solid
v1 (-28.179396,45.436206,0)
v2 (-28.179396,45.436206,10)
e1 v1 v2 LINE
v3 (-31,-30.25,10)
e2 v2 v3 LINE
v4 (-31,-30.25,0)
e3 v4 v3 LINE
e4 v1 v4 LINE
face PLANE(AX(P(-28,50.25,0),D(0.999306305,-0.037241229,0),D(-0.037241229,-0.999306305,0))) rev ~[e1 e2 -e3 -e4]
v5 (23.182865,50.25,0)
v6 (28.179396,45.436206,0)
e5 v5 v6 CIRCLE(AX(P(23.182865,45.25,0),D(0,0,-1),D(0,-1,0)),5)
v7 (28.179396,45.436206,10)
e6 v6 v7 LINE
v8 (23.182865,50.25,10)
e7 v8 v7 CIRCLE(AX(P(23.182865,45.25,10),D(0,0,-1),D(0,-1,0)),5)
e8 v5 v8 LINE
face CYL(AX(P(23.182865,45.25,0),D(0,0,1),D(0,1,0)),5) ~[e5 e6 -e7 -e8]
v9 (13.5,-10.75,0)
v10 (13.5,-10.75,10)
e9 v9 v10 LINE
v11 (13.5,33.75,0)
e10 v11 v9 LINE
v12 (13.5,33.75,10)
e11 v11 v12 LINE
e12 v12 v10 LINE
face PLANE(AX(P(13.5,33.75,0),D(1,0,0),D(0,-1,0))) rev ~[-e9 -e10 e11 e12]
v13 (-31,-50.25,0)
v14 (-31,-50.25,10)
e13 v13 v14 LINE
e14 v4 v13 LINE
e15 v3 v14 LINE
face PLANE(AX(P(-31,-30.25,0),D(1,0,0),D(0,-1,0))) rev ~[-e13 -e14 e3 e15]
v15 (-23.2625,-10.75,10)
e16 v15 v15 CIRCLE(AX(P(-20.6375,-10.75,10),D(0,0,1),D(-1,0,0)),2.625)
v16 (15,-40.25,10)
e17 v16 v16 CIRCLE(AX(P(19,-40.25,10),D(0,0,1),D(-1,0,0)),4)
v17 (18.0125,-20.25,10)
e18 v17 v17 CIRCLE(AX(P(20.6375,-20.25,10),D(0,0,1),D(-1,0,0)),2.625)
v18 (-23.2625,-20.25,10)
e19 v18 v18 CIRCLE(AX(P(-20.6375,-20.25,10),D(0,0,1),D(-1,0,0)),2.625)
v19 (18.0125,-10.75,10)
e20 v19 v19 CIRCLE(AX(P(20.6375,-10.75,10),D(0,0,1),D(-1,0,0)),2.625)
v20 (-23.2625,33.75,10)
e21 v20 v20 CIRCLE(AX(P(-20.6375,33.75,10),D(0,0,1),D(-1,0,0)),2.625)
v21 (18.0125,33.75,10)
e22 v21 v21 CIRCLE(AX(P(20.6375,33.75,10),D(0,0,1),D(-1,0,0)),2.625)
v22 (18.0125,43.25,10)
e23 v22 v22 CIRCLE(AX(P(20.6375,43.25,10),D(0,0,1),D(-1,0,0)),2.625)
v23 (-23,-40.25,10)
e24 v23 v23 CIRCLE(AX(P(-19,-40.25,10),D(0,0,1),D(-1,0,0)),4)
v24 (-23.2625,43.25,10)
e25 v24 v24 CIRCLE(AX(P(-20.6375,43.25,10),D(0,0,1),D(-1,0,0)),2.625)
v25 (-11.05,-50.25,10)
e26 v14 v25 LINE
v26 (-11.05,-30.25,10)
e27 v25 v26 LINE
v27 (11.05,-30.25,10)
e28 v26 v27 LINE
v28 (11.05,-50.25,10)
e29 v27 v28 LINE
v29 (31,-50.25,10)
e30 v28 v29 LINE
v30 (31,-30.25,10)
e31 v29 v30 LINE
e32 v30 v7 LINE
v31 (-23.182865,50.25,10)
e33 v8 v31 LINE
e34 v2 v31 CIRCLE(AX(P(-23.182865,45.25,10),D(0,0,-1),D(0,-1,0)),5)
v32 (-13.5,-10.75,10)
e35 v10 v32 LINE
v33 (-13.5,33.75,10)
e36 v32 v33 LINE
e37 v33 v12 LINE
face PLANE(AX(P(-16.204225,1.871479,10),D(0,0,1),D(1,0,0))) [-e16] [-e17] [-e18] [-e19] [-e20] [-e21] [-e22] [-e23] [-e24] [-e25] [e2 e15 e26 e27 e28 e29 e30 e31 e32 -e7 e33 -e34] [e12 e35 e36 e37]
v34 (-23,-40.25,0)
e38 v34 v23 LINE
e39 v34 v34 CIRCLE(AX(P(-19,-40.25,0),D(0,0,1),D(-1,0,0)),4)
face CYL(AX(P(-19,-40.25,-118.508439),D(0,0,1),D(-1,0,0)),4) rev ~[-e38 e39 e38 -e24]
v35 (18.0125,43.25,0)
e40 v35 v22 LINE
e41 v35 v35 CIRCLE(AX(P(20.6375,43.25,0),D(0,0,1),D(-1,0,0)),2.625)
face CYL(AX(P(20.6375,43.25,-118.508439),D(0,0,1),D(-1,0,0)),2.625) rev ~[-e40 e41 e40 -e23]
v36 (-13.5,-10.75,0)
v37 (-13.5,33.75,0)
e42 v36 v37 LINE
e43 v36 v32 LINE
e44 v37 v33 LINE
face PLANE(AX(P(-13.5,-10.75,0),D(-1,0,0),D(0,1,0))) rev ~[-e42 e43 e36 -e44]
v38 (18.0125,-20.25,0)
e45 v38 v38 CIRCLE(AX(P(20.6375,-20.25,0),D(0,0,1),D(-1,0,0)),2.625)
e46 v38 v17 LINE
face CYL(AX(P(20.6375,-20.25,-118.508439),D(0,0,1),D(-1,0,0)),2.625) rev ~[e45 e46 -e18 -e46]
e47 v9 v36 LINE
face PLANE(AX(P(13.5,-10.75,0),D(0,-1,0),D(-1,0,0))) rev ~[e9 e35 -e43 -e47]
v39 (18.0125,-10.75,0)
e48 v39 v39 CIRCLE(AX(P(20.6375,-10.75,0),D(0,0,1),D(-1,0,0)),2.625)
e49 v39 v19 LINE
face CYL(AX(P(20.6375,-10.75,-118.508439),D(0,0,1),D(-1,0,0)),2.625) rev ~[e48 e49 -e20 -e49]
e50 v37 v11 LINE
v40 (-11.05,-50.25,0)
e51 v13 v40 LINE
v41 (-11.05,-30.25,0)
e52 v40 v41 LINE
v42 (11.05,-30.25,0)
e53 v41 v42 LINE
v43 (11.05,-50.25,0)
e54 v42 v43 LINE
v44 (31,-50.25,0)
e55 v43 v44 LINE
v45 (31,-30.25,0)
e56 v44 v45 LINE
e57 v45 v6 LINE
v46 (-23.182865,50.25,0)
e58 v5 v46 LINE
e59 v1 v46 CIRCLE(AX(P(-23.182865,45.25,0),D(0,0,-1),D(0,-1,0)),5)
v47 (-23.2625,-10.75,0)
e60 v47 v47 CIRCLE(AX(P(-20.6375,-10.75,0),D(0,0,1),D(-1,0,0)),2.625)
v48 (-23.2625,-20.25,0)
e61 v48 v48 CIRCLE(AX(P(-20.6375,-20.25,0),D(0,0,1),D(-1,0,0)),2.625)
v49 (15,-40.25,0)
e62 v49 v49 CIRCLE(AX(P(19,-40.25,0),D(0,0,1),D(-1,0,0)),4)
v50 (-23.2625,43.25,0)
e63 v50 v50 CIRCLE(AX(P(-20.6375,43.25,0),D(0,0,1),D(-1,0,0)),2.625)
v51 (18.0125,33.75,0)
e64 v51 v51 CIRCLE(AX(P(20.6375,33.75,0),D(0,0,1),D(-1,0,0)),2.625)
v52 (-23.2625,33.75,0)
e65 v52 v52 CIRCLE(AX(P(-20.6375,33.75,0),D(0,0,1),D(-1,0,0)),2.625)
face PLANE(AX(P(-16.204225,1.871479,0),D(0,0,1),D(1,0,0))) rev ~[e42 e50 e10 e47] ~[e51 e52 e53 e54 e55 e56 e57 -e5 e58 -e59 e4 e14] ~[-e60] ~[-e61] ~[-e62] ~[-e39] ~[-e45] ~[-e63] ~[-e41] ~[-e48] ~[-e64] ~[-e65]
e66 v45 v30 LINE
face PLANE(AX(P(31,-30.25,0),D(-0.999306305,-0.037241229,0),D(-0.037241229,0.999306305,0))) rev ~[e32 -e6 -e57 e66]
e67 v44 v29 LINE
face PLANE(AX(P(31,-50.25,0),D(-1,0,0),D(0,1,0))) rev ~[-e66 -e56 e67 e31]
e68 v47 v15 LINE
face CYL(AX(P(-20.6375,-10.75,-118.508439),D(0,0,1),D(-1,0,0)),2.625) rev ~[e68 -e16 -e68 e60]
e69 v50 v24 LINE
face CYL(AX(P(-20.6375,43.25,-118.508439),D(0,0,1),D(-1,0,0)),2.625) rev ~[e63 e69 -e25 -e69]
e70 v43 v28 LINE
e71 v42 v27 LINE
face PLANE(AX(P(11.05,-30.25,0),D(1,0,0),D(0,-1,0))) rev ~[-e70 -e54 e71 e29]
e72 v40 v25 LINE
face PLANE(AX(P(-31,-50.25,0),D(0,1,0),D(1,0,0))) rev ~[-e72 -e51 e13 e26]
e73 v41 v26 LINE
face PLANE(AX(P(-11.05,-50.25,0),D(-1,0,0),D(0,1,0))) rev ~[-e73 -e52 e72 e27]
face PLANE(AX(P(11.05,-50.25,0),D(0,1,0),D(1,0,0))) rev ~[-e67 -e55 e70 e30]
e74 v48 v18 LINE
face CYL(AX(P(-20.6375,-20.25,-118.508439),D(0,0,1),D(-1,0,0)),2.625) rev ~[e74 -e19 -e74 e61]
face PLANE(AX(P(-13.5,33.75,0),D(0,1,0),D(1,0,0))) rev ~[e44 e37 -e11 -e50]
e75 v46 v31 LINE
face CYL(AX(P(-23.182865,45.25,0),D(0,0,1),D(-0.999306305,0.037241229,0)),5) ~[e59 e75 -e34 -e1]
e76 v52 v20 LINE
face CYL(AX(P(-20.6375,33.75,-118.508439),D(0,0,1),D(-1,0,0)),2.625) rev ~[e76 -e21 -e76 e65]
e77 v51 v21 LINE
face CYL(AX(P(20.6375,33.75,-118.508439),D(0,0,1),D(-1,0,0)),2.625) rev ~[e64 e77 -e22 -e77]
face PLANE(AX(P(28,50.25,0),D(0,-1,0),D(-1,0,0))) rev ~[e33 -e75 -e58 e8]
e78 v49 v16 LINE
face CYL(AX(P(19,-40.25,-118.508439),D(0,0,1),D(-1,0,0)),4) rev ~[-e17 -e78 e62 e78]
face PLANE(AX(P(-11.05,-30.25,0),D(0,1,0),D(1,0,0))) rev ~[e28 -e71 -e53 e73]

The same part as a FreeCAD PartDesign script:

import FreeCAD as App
import Part
import Sketcher
from FreeCAD import Vector
Q = App.Units.Quantity


def edges_at(feature, points):
    """Names of the edges that pass closest to the given points."""
    edges = feature.Shape.Edges
    near = lambda p: min(range(len(edges)), key=lambda i: edges[i].distToShape(Part.Vertex(*p))[0])
    return sorted({f"Edge{near(p) + 1}" for p in points})

doc = App.newDocument("Part")
body = doc.addObject("PartDesign::Body", "Body")

sketch1 = body.newObject("Sketcher::SketchObject", "Sketch")
sketch1.AttachmentSupport = (doc.getObject("XY_Plane"), [""])
sketch1.MapMode = "FlatFace"
sketch1.addGeometry(Part.LineSegment(Vector(-11.05, -50.25, 0), Vector(-11.05, -30.25, 0)), False)
sketch1.addGeometry(Part.LineSegment(Vector(-11.05, -30.25, 0), Vector(11.05, -30.25, 0)), False)
sketch1.addGeometry(Part.LineSegment(Vector(11.05, -30.25, 0), Vector(11.05, -50.25, 0)), False)
sketch1.addGeometry(Part.LineSegment(Vector(11.05, -50.25, 0), Vector(31, -50.25, 0)), False)
sketch1.addGeometry(Part.LineSegment(Vector(31, -50.25, 0), Vector(31, -30.25, 0)), False)
sketch1.addGeometry(Part.LineSegment(Vector(31, -30.25, 0), Vector(28, 50.25, 0)), False)
sketch1.addGeometry(Part.LineSegment(Vector(28, 50.25, 0), Vector(-28, 50.25, 0)), False)
sketch1.addGeometry(Part.LineSegment(Vector(-28, 50.25, 0), Vector(-31, -30.25, 0)), False)
sketch1.addGeometry(Part.LineSegment(Vector(-31, -30.25, 0), Vector(-31, -50.25, 0)), False)
sketch1.addGeometry(Part.LineSegment(Vector(-31, -50.25, 0), Vector(-11.05, -50.25, 0)), False)
sketch1.addGeometry(Part.LineSegment(Vector(-13.5, -10.75, 0), Vector(-13.5, 33.75, 0)), False)
sketch1.addGeometry(Part.LineSegment(Vector(-13.5, 33.75, 0), Vector(13.5, 33.75, 0)), False)
sketch1.addGeometry(Part.LineSegment(Vector(13.5, 33.75, 0), Vector(13.5, -10.75, 0)), False)
sketch1.addGeometry(Part.LineSegment(Vector(13.5, -10.75, 0), Vector(-13.5, -10.75, 0)), False)
sketch1.addConstraint(Sketcher.Constraint("Coincident", 0, 2, 1, 1))
sketch1.addConstraint(Sketcher.Constraint("Coincident", 1, 2, 2, 1))
sketch1.addConstraint(Sketcher.Constraint("Coincident", 2, 2, 3, 1))
sketch1.addConstraint(Sketcher.Constraint("Coincident", 3, 2, 4, 1))
sketch1.addConstraint(Sketcher.Constraint("Coincident", 4, 2, 5, 1))
sketch1.addConstraint(Sketcher.Constraint("Coincident", 5, 2, 6, 1))
sketch1.addConstraint(Sketcher.Constraint("Coincident", 6, 2, 7, 1))
sketch1.addConstraint(Sketcher.Constraint("Coincident", 7, 2, 8, 1))
sketch1.addConstraint(Sketcher.Constraint("Coincident", 8, 2, 9, 1))
sketch1.addConstraint(Sketcher.Constraint("Coincident", 9, 2, 0, 1))
sketch1.addConstraint(Sketcher.Constraint("Coincident", 10, 2, 11, 1))
sketch1.addConstraint(Sketcher.Constraint("Coincident", 11, 2, 12, 1))
sketch1.addConstraint(Sketcher.Constraint("Coincident", 12, 2, 13, 1))
sketch1.addConstraint(Sketcher.Constraint("Coincident", 13, 2, 10, 1))
sketch1.addConstraint(Sketcher.Constraint("Vertical", 0))
sketch1.addConstraint(Sketcher.Constraint("Horizontal", 1))
sketch1.addConstraint(Sketcher.Constraint("Vertical", 2))
sketch1.addConstraint(Sketcher.Constraint("Horizontal", 3))
sketch1.addConstraint(Sketcher.Constraint("Vertical", 4))
sketch1.addConstraint(Sketcher.Constraint("Horizontal", 6))
sketch1.addConstraint(Sketcher.Constraint("Vertical", 8))
sketch1.addConstraint(Sketcher.Constraint("Horizontal", 9))
sketch1.addConstraint(Sketcher.Constraint("Vertical", 10))
sketch1.addConstraint(Sketcher.Constraint("Horizontal", 11))
sketch1.addConstraint(Sketcher.Constraint("Vertical", 12))
sketch1.addConstraint(Sketcher.Constraint("Horizontal", 13))
sketch1.addConstraint(Sketcher.Constraint("Symmetric", 4, 2, 7, 2, -2))
sketch1.addConstraint(Sketcher.Constraint("Symmetric", 2, 2, 9, 2, -2))
sketch1.addConstraint(Sketcher.Constraint("Horizontal", 1, 2, 4, 2))
sketch1.addConstraint(Sketcher.Constraint("Equal", 5, 7))
sketch1.addConstraint(Sketcher.Constraint("DistanceX", 6, 2, 6, 1, Q("56 mm")))
sketch1.addConstraint(Sketcher.Constraint("DistanceX", 11, 1, 11, 2, Q("27 mm")))
sketch1.addConstraint(Sketcher.Constraint("DistanceY", 0, 1, 0, 2, Q("20 mm")))
sketch1.addConstraint(Sketcher.Constraint("DistanceX", 1, 1, 1, 2, Q("22.1 mm")))
sketch1.addConstraint(Sketcher.Constraint("DistanceY", 10, 1, 10, 2, Q("44.5 mm")))
sketch1.addConstraint(Sketcher.Constraint("DistanceX", -1, 1, 3, 2, Q("31 mm")))
sketch1.addConstraint(Sketcher.Constraint("DistanceY", 0, 2, 10, 2, Q("64 mm")))
sketch1.addConstraint(Sketcher.Constraint("DistanceX", 10, 2, -1, 1, Q("13.5 mm")))
sketch1.addConstraint(Sketcher.Constraint("DistanceY", 4, 2, 5, 2, Q("80.5 mm")))
sketch1.addConstraint(Sketcher.Constraint("DistanceY", 0, 2, -1, 1, Q("30.25 mm")))
pad1 = body.newObject("PartDesign::Pad", "Pad")
pad1.Profile = sketch1
pad1.Length = 10

sketch2 = body.newObject("Sketcher::SketchObject", "Sketch001")
sketch2.AttachmentSupport = (doc.getObject("XY_Plane"), [""])
sketch2.MapMode = "FlatFace"
sketch2.addGeometry(Part.Circle(Vector(20.6375, -20.25, 0), Vector(0, 0, 1), 2.625), False)
sketch2.addGeometry(Part.Circle(Vector(-20.6375, -20.25, 0), Vector(0, 0, 1), 2.625), False)
sketch2.addGeometry(Part.Circle(Vector(-20.6375, 33.75, 0), Vector(0, 0, 1), 2.625), False)
sketch2.addGeometry(Part.Circle(Vector(20.6375, 33.75, 0), Vector(0, 0, 1), 2.625), False)
sketch2.addGeometry(Part.Circle(Vector(-20.6375, 43.25, 0), Vector(0, 0, 1), 2.625), False)
sketch2.addGeometry(Part.Circle(Vector(20.6375, 43.25, 0), Vector(0, 0, 1), 2.625), False)
sketch2.addGeometry(Part.Circle(Vector(20.6375, -10.75, 0), Vector(0, 0, 1), 2.625), False)
sketch2.addGeometry(Part.Circle(Vector(-20.6375, -10.75, 0), Vector(0, 0, 1), 2.625), False)
sketch2.addConstraint(Sketcher.Constraint("Equal", 0, 1))
sketch2.addConstraint(Sketcher.Constraint("Equal", 1, 2))
sketch2.addConstraint(Sketcher.Constraint("Equal", 2, 3))
sketch2.addConstraint(Sketcher.Constraint("Equal", 3, 4))
sketch2.addConstraint(Sketcher.Constraint("Equal", 4, 5))
sketch2.addConstraint(Sketcher.Constraint("Equal", 5, 6))
sketch2.addConstraint(Sketcher.Constraint("Equal", 6, 7))
sketch2.addConstraint(Sketcher.Constraint("Symmetric", 0, 3, 1, 3, -2))
sketch2.addConstraint(Sketcher.Constraint("Symmetric", 2, 3, 3, 3, -2))
sketch2.addConstraint(Sketcher.Constraint("Symmetric", 4, 3, 5, 3, -2))
sketch2.addConstraint(Sketcher.Constraint("Symmetric", 6, 3, 7, 3, -2))
sketch2.addConstraint(Sketcher.Constraint("Vertical", 1, 3, 2, 3))
sketch2.addConstraint(Sketcher.Constraint("Vertical", 2, 3, 4, 3))
sketch2.addConstraint(Sketcher.Constraint("Vertical", 5, 3, 6, 3))
sketch2.addConstraint(Sketcher.Constraint("Diameter", 0, Q("5.25 mm")))
sketch2.addConstraint(Sketcher.Constraint("DistanceY", 1, 3, 2, 3, Q("54 mm")))
sketch2.addConstraint(Sketcher.Constraint("DistanceY", 6, 3, 5, 3, Q("54 mm")))
sketch2.addConstraint(Sketcher.Constraint("DistanceY", 2, 3, 4, 3, Q("9.5 mm")))
sketch2.addConstraint(Sketcher.Constraint("DistanceY", 0, 3, -1, 1, Q("20.25 mm")))
sketch2.addConstraint(Sketcher.Constraint("DistanceX", 1, 3, 0, 3, Q("41.275 mm")))
doc.recompute()
hole = body.newObject("PartDesign::Hole", "Hole")
hole.Profile = sketch2
hole.ThreadType = "None"
hole.Diameter = 5.25
hole.DepthType = "ThroughAll"
hole.Reversed = True

sketch3 = body.newObject("Sketcher::SketchObject", "Sketch002")
sketch3.AttachmentSupport = (doc.getObject("XY_Plane"), [""])
sketch3.MapMode = "FlatFace"
sketch3.addGeometry(Part.Circle(Vector(-19, -40.25, 0), Vector(0, 0, 1), 4), False)
sketch3.addGeometry(Part.Circle(Vector(19, -40.25, 0), Vector(0, 0, 1), 4), False)
sketch3.addConstraint(Sketcher.Constraint("Equal", 0, 1))
sketch3.addConstraint(Sketcher.Constraint("Symmetric", 0, 3, 1, 3, -2))
sketch3.addConstraint(Sketcher.Constraint("Diameter", 0, Q("8 mm")))
sketch3.addConstraint(Sketcher.Constraint("DistanceX", 0, 3, -1, 1, Q("19 mm")))
sketch3.addConstraint(Sketcher.Constraint("DistanceY", 0, 3, -1, 1, Q("40.25 mm")))
doc.recompute()
hole2 = body.newObject("PartDesign::Hole", "Hole001")
hole2.Profile = sketch3
hole2.ThreadType = "None"
hole2.Diameter = 8
hole2.DepthType = "ThroughAll"
hole2.Reversed = True
doc.recompute()

fillet = body.newObject("PartDesign::Fillet", "Fillet")
fillet.Base = (hole2, edges_at(hole2, [(28, 50.25, 5), (-28, 50.25, 5)]))
fillet.Radius = 5

doc.recompute()
